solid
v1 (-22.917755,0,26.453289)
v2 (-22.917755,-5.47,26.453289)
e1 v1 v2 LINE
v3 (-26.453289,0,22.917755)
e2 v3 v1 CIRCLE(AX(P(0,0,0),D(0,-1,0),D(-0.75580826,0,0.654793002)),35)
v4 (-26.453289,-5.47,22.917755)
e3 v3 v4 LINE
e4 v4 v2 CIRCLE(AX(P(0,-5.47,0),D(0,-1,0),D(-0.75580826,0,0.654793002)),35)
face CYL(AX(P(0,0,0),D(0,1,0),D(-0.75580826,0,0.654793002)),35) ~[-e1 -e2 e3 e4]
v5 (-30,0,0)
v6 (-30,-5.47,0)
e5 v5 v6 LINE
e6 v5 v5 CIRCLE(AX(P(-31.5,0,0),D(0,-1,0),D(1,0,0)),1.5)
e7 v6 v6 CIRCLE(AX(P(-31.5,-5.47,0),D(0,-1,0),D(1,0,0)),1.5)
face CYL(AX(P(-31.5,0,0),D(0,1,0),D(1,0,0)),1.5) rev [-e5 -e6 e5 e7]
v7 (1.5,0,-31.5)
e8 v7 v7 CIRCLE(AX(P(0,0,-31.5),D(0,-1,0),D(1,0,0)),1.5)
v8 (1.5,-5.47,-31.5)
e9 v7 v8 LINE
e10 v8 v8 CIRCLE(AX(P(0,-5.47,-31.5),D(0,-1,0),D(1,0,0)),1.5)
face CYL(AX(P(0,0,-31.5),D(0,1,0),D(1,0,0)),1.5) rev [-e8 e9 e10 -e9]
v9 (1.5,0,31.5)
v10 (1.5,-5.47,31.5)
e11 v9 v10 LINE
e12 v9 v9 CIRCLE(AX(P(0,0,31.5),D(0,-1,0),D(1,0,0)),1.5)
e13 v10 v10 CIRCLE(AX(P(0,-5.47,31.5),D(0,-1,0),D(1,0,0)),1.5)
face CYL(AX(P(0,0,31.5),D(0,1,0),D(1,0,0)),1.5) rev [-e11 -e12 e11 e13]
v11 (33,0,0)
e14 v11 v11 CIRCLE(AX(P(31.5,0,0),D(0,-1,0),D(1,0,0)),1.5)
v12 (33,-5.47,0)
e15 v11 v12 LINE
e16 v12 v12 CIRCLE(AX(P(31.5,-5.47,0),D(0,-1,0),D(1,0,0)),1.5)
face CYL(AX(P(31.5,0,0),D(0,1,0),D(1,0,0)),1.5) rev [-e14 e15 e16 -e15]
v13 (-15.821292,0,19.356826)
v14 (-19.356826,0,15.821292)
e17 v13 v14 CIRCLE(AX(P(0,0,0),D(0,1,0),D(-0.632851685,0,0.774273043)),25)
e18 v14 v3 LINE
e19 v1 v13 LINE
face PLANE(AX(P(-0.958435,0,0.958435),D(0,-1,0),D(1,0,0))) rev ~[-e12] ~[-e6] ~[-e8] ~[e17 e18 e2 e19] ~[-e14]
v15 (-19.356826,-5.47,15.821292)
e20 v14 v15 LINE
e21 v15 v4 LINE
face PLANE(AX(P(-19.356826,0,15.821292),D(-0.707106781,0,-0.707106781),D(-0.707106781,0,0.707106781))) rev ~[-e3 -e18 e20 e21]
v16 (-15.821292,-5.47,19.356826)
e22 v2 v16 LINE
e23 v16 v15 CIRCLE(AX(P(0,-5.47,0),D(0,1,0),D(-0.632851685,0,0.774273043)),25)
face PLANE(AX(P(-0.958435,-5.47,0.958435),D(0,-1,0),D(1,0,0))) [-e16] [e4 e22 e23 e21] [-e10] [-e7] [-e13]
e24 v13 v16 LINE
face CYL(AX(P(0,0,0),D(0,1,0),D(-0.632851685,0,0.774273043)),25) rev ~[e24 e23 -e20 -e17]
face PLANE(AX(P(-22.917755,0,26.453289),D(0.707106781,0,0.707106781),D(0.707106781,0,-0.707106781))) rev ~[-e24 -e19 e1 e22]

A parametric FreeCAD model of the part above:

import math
import FreeCAD as App
import Part
import Sketcher
Q = App.Units.Quantity

doc = App.newDocument("Part")
body = doc.addObject("PartDesign::Body", "Body")

sketch1 = body.newObject("Sketcher::SketchObject", "Sketch")
sketch1.AttachmentSupport = (doc.getObject("XZ_Plane"), [""])
sketch1.MapMode = "FlatFace"
sketch1.addGeometry([
    Part.ArcOfCircle(Part.Circle(App.Vector(0, 0, 0), App.Vector(0, 0, 1), 25), math.radians(140.739171), math.radians(489.260829)),
    Part.LineSegment(App.Vector(-19.356826, 15.821292, 0), App.Vector(-26.453289, 22.917755, 0)),
    Part.ArcOfCircle(Part.Circle(App.Vector(0, 0, 0), App.Vector(0, 0, 1), 35), math.radians(139.096044), math.radians(490.903956)),
    Part.LineSegment(App.Vector(-22.917755, 26.453289, 0), App.Vector(-15.821292, 19.356826, 0)),
    Part.Circle(App.Vector(0, -31.5, 0), App.Vector(0, 0, 1), 1.5),
    Part.Circle(App.Vector(-31.5, 0, 0), App.Vector(0, 0, 1), 1.5),
    Part.Circle(App.Vector(31.5, 0, 0), App.Vector(0, 0, 1), 1.5),
    Part.Circle(App.Vector(0, 31.5, 0), App.Vector(0, 0, 1), 1.5),
], False)
sketch1.addConstraint([
    Sketcher.Constraint("Coincident", 0, 1, 1, 1),
    Sketcher.Constraint("Coincident", 1, 2, 2, 1),
    Sketcher.Constraint("Coincident", 2, 2, 3, 1),
    Sketcher.Constraint("Coincident", 3, 2, 0, 2),
    Sketcher.Constraint("Coincident", 0, 3, -1, 1),
    Sketcher.Constraint("Coincident", 2, 3, -1, 1),
    Sketcher.Constraint("Equal", 4, 5),
    Sketcher.Constraint("Equal", 5, 6),
    Sketcher.Constraint("Equal", 6, 7),
    Sketcher.Constraint("Symmetric", 5, 3, 6, 3, -1, 1),
    Sketcher.Constraint("Symmetric", 4, 3, 7, 3, -1, 1),
    Sketcher.Constraint("PointOnObject", 4, 3, -2),
    Sketcher.Constraint("PointOnObject", 5, 3, -1),
    Sketcher.Constraint("Parallel", 1, 3),
    Sketcher.Constraint("Equal", 1, 3),
    Sketcher.Constraint("Diameter", 4, 3.0),
    Sketcher.Constraint("Radius", 0, 25.0),
    Sketcher.Constraint("Radius", 2, 35.0),
    Sketcher.Constraint("Angle", 1, Q("135 deg")),
    Sketcher.Constraint("DistanceX", 5, 3, 6, 3, 63.0),
    Sketcher.Constraint("DistanceY", 4, 3, 7, 3, 63.0),
    Sketcher.Constraint("DistanceY", -1, 1, 0, 1, 15.821292),
])
pad1 = body.newObject("PartDesign::Pad", "Pad")
pad1.Profile = sketch1
pad1.Length = 5.47

doc.recompute()
